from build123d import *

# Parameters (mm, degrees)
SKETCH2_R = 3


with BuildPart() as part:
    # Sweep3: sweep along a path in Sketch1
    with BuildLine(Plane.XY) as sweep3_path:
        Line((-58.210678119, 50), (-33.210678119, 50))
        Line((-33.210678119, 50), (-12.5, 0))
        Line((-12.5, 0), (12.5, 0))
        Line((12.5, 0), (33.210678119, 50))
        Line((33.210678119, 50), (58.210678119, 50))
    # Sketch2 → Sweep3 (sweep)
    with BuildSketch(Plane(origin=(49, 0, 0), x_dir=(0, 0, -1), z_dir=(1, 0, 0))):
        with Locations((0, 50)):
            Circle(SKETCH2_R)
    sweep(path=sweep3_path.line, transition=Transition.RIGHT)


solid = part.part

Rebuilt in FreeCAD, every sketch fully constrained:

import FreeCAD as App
import Part
import Sketcher
from FreeCAD import Vector
Q = App.Units.Quantity

doc = App.newDocument("Part")
body = doc.addObject("PartDesign::Body", "Body")

# Sketch on YZ plane
sketch1 = body.newObject("Sketcher::SketchObject", "Sketch")
sketch1.AttachmentSupport = (doc.getObject("YZ_Plane"), [""])
sketch1.MapMode = "FlatFace"
sketch1.AttachmentOffset = App.Placement(Vector(0, 0, 49), App.Rotation())
sketch1.addGeometry(Part.Circle(Vector(50, 0, 0), Vector(0, 0, 1), 3), False)
sketch1.addConstraint([
    Sketcher.Constraint("PointOnObject", 0, 3, -1),
    Sketcher.Constraint("Diameter", 0, 6.0),
    Sketcher.Constraint("DistanceX", -1, 1, 0, 3, 50.0),
])

# Sketch on XY plane
sketch2 = body.newObject("Sketcher::SketchObject", "Sketch001")
sketch2.AttachmentSupport = (doc.getObject("XY_Plane"), [""])
sketch2.MapMode = "FlatFace"
sketch2.addGeometry([
    Part.LineSegment(Vector(-58.210678, 50, 0), Vector(-33.210678, 50, 0)),  # 0
    Part.LineSegment(Vector(-33.210678, 50, 0), Vector(-12.5, 0, 0)),  # 1
    Part.LineSegment(Vector(-12.5, 0, 0), Vector(12.5, 0, 0)),  # 2
    Part.LineSegment(Vector(12.5, 0, 0), Vector(33.210678, 50, 0)),  # 3
    Part.LineSegment(Vector(33.210678, 50, 0), Vector(58.210678, 50, 0)),  # 4
], False)
sketch2.addConstraint([
    Sketcher.Constraint("Coincident", 0, 2, 1, 1),
    Sketcher.Constraint("Coincident", 1, 2, 2, 1),
    Sketcher.Constraint("Coincident", 2, 2, 3, 1),
    Sketcher.Constraint("Coincident", 3, 2, 4, 1),
    Sketcher.Constraint("Horizontal", 0),
    Sketcher.Constraint("Horizontal", 2),
    Sketcher.Constraint("Horizontal", 4),
    Sketcher.Constraint("Symmetric", 1, 2, 2, 2, -1, 1),
    Sketcher.Constraint("Symmetric", 0, 2, 3, 2, -2),
    Sketcher.Constraint("Equal", 0, 2),
    Sketcher.Constraint("Equal", 2, 4),
    Sketcher.Constraint("DistanceX", 0, 1, 0, 2, 25.0),
    Sketcher.Constraint("DistanceY", -1, 1, 0, 1, 50.0),
    Sketcher.Constraint("Angle", 1, Q("-67.5 deg")),
])
doc.recompute()

additivepipe = body.newObject("PartDesign::AdditivePipe", "AdditivePipe")
additivepipe.Profile = sketch1
additivepipe.Spine = (sketch2, ["Edge1", "Edge2", "Edge3", "Edge4", "Edge5"])
additivepipe.Transition = "Right corner"

doc.recompute()
